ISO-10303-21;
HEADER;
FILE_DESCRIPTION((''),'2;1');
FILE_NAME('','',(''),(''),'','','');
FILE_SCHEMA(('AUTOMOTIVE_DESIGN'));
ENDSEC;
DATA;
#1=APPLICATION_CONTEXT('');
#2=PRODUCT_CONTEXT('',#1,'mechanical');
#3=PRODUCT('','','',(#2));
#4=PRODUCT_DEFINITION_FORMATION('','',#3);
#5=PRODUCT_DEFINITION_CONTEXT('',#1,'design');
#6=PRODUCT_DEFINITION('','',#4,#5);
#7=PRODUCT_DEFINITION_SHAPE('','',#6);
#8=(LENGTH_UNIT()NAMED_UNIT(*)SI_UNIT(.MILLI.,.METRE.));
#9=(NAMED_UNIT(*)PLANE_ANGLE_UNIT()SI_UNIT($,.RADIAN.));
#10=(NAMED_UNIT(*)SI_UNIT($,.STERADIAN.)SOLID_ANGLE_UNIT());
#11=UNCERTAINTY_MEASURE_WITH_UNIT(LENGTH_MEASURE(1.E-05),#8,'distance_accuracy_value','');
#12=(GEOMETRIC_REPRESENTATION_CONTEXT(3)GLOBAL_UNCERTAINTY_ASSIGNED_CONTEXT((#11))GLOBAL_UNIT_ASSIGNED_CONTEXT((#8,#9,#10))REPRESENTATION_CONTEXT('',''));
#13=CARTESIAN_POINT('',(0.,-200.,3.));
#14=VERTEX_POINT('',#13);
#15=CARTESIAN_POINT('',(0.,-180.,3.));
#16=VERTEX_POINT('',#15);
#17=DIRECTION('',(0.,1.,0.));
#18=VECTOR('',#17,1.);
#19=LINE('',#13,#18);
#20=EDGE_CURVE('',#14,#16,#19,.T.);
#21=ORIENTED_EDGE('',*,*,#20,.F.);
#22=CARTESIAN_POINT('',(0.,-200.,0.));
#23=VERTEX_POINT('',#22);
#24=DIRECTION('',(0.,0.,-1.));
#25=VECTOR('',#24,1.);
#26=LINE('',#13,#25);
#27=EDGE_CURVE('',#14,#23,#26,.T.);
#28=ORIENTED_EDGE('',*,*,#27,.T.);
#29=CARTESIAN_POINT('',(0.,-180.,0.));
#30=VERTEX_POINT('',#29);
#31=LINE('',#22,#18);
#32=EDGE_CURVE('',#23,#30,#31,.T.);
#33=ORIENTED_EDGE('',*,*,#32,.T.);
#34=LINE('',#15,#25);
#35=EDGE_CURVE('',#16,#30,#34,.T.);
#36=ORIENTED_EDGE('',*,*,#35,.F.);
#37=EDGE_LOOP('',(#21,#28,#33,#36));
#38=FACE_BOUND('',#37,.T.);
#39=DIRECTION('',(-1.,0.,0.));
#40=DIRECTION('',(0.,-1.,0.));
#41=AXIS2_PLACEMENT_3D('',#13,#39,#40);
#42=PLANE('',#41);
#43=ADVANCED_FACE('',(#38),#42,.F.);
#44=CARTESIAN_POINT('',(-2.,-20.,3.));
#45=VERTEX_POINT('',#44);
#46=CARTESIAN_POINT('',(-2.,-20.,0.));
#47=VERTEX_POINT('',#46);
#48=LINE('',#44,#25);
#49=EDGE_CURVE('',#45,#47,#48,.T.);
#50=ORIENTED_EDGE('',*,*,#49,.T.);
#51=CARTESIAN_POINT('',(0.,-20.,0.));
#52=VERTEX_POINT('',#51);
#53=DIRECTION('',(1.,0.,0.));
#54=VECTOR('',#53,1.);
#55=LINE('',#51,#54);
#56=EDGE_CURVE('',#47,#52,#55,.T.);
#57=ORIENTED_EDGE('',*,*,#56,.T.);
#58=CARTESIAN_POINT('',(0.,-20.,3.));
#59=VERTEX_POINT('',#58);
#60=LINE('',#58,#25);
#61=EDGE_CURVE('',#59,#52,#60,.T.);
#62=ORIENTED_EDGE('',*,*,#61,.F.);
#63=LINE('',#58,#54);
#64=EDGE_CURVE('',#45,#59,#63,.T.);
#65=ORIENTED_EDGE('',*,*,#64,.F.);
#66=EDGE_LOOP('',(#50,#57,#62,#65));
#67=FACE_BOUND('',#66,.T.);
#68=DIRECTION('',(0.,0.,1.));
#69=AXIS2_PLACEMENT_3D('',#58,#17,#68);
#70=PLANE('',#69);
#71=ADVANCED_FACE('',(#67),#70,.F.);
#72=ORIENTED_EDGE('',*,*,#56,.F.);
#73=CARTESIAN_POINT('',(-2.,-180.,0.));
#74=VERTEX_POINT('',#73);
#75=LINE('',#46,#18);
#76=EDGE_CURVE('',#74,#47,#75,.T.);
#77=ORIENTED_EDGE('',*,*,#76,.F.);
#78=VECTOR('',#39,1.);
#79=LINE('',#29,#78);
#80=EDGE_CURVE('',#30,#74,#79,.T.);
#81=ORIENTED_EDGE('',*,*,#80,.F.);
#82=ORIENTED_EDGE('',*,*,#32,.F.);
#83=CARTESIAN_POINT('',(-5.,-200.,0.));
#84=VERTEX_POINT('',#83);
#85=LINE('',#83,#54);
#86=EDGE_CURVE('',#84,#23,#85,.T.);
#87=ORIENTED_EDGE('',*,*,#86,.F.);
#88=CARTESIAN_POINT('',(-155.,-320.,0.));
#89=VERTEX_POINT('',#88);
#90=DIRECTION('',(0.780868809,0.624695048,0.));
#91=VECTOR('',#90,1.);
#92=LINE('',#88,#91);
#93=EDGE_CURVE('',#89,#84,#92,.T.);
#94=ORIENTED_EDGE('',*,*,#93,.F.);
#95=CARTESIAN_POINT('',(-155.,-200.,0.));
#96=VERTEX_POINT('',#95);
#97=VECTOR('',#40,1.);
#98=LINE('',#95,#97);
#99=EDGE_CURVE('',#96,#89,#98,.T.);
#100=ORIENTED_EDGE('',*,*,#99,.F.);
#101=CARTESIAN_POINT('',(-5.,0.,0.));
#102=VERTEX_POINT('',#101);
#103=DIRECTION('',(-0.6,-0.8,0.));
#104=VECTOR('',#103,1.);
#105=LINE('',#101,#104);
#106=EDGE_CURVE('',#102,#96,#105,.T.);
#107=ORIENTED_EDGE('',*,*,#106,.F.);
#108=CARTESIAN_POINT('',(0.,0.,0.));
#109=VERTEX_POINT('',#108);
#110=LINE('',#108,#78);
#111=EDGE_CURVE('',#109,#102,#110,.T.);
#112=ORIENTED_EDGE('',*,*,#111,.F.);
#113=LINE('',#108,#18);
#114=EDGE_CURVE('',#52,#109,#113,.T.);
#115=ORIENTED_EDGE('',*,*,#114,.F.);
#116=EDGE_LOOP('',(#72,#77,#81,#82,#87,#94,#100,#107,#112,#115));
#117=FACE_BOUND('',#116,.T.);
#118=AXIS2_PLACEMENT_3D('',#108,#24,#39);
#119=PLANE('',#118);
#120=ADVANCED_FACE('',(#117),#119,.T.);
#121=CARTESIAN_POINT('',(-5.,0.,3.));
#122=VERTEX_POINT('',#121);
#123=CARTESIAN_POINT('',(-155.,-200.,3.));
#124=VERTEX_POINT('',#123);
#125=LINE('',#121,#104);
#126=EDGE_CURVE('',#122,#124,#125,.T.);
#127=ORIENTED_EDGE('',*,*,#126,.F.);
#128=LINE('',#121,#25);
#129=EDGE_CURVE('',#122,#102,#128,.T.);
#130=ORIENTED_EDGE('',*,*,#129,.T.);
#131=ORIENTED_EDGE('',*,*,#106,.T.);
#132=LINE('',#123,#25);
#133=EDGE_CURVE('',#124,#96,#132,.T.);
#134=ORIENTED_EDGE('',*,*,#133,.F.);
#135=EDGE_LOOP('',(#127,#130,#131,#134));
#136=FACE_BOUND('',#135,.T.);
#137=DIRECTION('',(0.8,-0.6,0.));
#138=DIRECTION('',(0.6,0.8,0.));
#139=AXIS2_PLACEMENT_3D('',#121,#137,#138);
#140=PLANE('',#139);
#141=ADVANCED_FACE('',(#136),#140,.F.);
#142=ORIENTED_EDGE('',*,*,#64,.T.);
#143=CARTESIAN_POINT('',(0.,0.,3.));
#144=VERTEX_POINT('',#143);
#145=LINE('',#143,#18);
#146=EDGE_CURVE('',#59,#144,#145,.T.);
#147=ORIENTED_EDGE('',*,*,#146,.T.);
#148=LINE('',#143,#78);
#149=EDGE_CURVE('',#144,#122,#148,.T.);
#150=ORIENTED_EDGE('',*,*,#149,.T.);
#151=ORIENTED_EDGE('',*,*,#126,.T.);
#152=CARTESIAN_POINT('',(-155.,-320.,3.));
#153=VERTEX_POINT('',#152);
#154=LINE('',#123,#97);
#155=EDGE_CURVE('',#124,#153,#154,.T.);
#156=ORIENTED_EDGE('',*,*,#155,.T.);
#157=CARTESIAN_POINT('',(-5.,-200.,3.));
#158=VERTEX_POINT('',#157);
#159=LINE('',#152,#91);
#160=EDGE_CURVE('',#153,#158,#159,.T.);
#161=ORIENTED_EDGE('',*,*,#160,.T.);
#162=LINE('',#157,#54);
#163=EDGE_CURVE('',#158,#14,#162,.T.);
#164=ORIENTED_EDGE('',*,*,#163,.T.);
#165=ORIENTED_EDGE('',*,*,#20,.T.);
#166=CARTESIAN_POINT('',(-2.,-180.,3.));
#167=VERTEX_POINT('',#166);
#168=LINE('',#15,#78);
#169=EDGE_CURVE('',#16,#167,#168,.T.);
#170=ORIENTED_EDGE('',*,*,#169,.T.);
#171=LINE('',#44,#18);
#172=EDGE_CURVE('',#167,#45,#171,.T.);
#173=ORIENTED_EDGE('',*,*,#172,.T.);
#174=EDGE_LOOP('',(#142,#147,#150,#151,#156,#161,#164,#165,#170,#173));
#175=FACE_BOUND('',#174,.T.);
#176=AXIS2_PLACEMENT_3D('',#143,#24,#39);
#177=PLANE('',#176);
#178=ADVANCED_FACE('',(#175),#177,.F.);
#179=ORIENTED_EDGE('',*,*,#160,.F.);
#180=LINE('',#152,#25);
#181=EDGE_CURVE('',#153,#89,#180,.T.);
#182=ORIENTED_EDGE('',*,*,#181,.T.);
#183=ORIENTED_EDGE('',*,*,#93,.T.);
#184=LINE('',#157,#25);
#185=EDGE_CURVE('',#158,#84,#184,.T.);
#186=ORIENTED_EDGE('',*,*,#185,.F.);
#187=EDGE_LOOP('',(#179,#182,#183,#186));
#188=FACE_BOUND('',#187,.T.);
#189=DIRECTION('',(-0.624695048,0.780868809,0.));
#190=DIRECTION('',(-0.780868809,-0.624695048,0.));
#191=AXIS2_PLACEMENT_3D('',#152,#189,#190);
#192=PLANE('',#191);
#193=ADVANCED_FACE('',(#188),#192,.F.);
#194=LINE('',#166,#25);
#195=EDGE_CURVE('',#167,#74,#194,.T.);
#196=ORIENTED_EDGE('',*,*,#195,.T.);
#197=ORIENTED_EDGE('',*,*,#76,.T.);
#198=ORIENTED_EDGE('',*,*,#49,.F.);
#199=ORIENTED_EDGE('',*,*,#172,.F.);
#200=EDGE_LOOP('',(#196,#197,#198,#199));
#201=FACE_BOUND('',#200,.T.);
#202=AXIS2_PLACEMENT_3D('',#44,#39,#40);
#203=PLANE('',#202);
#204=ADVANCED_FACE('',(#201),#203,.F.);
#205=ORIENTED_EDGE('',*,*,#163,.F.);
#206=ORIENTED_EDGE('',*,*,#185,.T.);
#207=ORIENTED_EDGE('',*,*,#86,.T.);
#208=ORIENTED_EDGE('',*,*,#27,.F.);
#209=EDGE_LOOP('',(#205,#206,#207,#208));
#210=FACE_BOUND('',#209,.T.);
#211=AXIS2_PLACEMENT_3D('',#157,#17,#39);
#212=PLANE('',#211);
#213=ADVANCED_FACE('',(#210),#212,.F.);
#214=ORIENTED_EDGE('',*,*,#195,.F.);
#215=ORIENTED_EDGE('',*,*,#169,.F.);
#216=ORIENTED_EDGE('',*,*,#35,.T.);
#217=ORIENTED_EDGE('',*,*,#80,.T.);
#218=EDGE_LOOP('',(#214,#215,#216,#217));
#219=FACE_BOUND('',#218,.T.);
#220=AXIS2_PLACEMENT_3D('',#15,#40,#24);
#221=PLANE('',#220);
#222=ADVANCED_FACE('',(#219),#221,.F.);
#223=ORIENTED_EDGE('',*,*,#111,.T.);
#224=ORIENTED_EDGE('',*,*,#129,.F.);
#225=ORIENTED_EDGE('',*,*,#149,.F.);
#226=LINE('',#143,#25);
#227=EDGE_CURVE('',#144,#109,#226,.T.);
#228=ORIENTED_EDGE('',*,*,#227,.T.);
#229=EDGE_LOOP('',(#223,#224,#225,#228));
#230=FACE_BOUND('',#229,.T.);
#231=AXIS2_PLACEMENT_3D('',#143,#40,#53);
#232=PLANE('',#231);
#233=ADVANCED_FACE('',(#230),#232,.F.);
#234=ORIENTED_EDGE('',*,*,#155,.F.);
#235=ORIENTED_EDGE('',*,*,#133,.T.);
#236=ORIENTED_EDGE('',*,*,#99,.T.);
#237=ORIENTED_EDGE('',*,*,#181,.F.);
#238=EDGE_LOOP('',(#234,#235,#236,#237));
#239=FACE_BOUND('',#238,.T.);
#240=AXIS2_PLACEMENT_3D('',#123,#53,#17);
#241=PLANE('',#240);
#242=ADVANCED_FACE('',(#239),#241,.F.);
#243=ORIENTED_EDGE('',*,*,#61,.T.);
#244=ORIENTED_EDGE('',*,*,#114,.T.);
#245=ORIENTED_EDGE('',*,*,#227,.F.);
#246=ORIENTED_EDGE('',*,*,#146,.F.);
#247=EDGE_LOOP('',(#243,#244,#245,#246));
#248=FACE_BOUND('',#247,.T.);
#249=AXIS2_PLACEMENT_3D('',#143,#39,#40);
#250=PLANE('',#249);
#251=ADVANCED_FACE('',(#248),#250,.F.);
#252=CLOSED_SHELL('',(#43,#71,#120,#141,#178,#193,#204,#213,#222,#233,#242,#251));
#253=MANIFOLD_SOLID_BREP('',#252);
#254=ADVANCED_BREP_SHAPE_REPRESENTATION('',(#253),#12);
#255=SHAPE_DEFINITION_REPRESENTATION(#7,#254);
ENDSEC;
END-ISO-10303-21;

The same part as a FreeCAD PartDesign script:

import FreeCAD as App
import Part
import Sketcher

V = App.Vector
Q = App.Units.Quantity


def add_polygon(sketch, points):
    """Adds a closed chain of lines whose ends are joined by coincident constraints."""
    first, n = sketch.GeometryCount, len(points)
    for a, b in zip(points, points[1:] + points[:1]):
        sketch.addGeometry(Part.LineSegment(App.Vector(*a, 0), App.Vector(*b, 0)), False)
    for i in range(n):
        sketch.addConstraint(Sketcher.Constraint("Coincident", first + i, 2, first + (i + 1) % n, 1))

doc = App.newDocument("Part")
body = doc.addObject("PartDesign::Body", "Body")

# Sketch on XY plane
sketch1 = body.newObject("Sketcher::SketchObject", "Sketch")
sketch1.AttachmentSupport = (doc.getObject("XY_Plane"), [""])
sketch1.MapMode = "FlatFace"
add_polygon(sketch1, [(0, 0), (-5, 0), (-155, -200), (-155, -320), (-5, -200), (0, -200), (0, -180), (-2, -180), (-2, -20), (0, -20)])  # lines 0-9
sketch1.addConstraint([
    Sketcher.Constraint("Horizontal", 0),
    Sketcher.Constraint("Vertical", 2),
    Sketcher.Constraint("Horizontal", 4),
    Sketcher.Constraint("Vertical", 5),
    Sketcher.Constraint("Horizontal", 6),
    Sketcher.Constraint("Vertical", 7),
    Sketcher.Constraint("Horizontal", 8),
    Sketcher.Constraint("Vertical", 9),
    Sketcher.Constraint("Coincident", 9, 2, -1, 1),
    Sketcher.Constraint("PointOnObject", 4, 2, -2),
    Sketcher.Constraint("Horizontal", 1, 2, 3, 2),
    Sketcher.Constraint("Vertical", 0, 2, 3, 2),
    Sketcher.Constraint("Equal", 5, 9),
    Sketcher.Constraint("DistanceX", 0, 2, 0, 1, Q("5 mm")),
    Sketcher.Constraint("DistanceX", 6, 2, 6, 1, Q("2 mm")),
    Sketcher.Constraint("DistanceY", 2, 2, 2, 1, Q("120 mm")),
    Sketcher.Constraint("DistanceY", 5, 1, 5, 2, Q("20 mm")),
    Sketcher.Constraint("DistanceY", 7, 1, 7, 2, Q("160 mm")),
    Sketcher.Constraint("Distance", 1, Q("250 mm")),
])
pad1 = body.newObject("PartDesign::Pad", "Pad")
pad1.Profile = sketch1
pad1.Length = 3

doc.recompute()
